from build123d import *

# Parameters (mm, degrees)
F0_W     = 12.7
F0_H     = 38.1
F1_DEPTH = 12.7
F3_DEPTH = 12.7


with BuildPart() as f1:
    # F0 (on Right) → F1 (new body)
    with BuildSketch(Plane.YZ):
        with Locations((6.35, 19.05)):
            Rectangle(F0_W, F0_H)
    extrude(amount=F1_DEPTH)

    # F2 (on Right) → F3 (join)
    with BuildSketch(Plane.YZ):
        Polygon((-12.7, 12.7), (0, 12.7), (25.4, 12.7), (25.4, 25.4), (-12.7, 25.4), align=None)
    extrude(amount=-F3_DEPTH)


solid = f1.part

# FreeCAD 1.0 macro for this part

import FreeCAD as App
import Part
import Sketcher
from FreeCAD import Vector
Q = App.Units.Quantity


def add_polygon(sketch, points):
    """Adds a closed chain of lines whose ends are joined by coincident constraints."""
    first, n = sketch.GeometryCount, len(points)
    for a, b in zip(points, points[1:] + points[:1]):
        sketch.addGeometry(Part.LineSegment(App.Vector(*a, 0), App.Vector(*b, 0)), False)
    for i in range(n):
        sketch.addConstraint(Sketcher.Constraint("Coincident", first + i, 2, first + (i + 1) % n, 1))

doc = App.newDocument("Part")
body = doc.addObject("PartDesign::Body", "Body")

# Sketch on YZ plane
sketch1 = body.newObject("Sketcher::SketchObject", "Sketch")
sketch1.AttachmentSupport = (doc.getObject("YZ_Plane"), [""])
sketch1.MapMode = "FlatFace"
add_polygon(sketch1, [(0, 38), (0, 0), (13, 0), (13, 38)])  # lines 0-3
sketch1.addConstraint([
    Sketcher.Constraint("Vertical", 0),
    Sketcher.Constraint("Horizontal", 1),
    Sketcher.Constraint("Vertical", 2),
    Sketcher.Constraint("Horizontal", 3),
    Sketcher.Constraint("Coincident", 0, 2, -1, 1),
    Sketcher.Constraint("DistanceX", 1, 1, 1, 2, Q("0.5 in")),
    Sketcher.Constraint("DistanceY", 0, 2, 0, 1, Q("1.5 in")),
])
pad1 = body.newObject("PartDesign::Pad", "Pad")
pad1.Profile = sketch1
pad1.Length = Q("0.5 in")

# Sketch on YZ plane
sketch2 = body.newObject("Sketcher::SketchObject", "Sketch001")
sketch2.AttachmentSupport = (doc.getObject("YZ_Plane"), [""])
sketch2.MapMode = "FlatFace"
add_polygon(sketch2, [(-13, 13), (25, 13), (25, 25), (-13, 25)])  # lines 0-3
sketch2.addConstraint([
    Sketcher.Constraint("Horizontal", 0),
    Sketcher.Constraint("Vertical", 1),
    Sketcher.Constraint("Horizontal", 2),
    Sketcher.Constraint("Vertical", 3),
    Sketcher.Constraint("DistanceX", 0, 1, 0, 2, Q("1.5 in")),
    Sketcher.Constraint("DistanceY", 1, 1, 1, 2, Q("0.5 in")),
    Sketcher.Constraint("DistanceX", -1, 1, 0, 2, Q("1 in")),
    Sketcher.Constraint("DistanceY", -1, 1, 1, 2, Q("1 in")),
])
pad2 = body.newObject("PartDesign::Pad", "Pad001")
pad2.Profile = sketch2
pad2.Length = Q("0.5 in")
pad2.Reversed = True

doc.recompute()
